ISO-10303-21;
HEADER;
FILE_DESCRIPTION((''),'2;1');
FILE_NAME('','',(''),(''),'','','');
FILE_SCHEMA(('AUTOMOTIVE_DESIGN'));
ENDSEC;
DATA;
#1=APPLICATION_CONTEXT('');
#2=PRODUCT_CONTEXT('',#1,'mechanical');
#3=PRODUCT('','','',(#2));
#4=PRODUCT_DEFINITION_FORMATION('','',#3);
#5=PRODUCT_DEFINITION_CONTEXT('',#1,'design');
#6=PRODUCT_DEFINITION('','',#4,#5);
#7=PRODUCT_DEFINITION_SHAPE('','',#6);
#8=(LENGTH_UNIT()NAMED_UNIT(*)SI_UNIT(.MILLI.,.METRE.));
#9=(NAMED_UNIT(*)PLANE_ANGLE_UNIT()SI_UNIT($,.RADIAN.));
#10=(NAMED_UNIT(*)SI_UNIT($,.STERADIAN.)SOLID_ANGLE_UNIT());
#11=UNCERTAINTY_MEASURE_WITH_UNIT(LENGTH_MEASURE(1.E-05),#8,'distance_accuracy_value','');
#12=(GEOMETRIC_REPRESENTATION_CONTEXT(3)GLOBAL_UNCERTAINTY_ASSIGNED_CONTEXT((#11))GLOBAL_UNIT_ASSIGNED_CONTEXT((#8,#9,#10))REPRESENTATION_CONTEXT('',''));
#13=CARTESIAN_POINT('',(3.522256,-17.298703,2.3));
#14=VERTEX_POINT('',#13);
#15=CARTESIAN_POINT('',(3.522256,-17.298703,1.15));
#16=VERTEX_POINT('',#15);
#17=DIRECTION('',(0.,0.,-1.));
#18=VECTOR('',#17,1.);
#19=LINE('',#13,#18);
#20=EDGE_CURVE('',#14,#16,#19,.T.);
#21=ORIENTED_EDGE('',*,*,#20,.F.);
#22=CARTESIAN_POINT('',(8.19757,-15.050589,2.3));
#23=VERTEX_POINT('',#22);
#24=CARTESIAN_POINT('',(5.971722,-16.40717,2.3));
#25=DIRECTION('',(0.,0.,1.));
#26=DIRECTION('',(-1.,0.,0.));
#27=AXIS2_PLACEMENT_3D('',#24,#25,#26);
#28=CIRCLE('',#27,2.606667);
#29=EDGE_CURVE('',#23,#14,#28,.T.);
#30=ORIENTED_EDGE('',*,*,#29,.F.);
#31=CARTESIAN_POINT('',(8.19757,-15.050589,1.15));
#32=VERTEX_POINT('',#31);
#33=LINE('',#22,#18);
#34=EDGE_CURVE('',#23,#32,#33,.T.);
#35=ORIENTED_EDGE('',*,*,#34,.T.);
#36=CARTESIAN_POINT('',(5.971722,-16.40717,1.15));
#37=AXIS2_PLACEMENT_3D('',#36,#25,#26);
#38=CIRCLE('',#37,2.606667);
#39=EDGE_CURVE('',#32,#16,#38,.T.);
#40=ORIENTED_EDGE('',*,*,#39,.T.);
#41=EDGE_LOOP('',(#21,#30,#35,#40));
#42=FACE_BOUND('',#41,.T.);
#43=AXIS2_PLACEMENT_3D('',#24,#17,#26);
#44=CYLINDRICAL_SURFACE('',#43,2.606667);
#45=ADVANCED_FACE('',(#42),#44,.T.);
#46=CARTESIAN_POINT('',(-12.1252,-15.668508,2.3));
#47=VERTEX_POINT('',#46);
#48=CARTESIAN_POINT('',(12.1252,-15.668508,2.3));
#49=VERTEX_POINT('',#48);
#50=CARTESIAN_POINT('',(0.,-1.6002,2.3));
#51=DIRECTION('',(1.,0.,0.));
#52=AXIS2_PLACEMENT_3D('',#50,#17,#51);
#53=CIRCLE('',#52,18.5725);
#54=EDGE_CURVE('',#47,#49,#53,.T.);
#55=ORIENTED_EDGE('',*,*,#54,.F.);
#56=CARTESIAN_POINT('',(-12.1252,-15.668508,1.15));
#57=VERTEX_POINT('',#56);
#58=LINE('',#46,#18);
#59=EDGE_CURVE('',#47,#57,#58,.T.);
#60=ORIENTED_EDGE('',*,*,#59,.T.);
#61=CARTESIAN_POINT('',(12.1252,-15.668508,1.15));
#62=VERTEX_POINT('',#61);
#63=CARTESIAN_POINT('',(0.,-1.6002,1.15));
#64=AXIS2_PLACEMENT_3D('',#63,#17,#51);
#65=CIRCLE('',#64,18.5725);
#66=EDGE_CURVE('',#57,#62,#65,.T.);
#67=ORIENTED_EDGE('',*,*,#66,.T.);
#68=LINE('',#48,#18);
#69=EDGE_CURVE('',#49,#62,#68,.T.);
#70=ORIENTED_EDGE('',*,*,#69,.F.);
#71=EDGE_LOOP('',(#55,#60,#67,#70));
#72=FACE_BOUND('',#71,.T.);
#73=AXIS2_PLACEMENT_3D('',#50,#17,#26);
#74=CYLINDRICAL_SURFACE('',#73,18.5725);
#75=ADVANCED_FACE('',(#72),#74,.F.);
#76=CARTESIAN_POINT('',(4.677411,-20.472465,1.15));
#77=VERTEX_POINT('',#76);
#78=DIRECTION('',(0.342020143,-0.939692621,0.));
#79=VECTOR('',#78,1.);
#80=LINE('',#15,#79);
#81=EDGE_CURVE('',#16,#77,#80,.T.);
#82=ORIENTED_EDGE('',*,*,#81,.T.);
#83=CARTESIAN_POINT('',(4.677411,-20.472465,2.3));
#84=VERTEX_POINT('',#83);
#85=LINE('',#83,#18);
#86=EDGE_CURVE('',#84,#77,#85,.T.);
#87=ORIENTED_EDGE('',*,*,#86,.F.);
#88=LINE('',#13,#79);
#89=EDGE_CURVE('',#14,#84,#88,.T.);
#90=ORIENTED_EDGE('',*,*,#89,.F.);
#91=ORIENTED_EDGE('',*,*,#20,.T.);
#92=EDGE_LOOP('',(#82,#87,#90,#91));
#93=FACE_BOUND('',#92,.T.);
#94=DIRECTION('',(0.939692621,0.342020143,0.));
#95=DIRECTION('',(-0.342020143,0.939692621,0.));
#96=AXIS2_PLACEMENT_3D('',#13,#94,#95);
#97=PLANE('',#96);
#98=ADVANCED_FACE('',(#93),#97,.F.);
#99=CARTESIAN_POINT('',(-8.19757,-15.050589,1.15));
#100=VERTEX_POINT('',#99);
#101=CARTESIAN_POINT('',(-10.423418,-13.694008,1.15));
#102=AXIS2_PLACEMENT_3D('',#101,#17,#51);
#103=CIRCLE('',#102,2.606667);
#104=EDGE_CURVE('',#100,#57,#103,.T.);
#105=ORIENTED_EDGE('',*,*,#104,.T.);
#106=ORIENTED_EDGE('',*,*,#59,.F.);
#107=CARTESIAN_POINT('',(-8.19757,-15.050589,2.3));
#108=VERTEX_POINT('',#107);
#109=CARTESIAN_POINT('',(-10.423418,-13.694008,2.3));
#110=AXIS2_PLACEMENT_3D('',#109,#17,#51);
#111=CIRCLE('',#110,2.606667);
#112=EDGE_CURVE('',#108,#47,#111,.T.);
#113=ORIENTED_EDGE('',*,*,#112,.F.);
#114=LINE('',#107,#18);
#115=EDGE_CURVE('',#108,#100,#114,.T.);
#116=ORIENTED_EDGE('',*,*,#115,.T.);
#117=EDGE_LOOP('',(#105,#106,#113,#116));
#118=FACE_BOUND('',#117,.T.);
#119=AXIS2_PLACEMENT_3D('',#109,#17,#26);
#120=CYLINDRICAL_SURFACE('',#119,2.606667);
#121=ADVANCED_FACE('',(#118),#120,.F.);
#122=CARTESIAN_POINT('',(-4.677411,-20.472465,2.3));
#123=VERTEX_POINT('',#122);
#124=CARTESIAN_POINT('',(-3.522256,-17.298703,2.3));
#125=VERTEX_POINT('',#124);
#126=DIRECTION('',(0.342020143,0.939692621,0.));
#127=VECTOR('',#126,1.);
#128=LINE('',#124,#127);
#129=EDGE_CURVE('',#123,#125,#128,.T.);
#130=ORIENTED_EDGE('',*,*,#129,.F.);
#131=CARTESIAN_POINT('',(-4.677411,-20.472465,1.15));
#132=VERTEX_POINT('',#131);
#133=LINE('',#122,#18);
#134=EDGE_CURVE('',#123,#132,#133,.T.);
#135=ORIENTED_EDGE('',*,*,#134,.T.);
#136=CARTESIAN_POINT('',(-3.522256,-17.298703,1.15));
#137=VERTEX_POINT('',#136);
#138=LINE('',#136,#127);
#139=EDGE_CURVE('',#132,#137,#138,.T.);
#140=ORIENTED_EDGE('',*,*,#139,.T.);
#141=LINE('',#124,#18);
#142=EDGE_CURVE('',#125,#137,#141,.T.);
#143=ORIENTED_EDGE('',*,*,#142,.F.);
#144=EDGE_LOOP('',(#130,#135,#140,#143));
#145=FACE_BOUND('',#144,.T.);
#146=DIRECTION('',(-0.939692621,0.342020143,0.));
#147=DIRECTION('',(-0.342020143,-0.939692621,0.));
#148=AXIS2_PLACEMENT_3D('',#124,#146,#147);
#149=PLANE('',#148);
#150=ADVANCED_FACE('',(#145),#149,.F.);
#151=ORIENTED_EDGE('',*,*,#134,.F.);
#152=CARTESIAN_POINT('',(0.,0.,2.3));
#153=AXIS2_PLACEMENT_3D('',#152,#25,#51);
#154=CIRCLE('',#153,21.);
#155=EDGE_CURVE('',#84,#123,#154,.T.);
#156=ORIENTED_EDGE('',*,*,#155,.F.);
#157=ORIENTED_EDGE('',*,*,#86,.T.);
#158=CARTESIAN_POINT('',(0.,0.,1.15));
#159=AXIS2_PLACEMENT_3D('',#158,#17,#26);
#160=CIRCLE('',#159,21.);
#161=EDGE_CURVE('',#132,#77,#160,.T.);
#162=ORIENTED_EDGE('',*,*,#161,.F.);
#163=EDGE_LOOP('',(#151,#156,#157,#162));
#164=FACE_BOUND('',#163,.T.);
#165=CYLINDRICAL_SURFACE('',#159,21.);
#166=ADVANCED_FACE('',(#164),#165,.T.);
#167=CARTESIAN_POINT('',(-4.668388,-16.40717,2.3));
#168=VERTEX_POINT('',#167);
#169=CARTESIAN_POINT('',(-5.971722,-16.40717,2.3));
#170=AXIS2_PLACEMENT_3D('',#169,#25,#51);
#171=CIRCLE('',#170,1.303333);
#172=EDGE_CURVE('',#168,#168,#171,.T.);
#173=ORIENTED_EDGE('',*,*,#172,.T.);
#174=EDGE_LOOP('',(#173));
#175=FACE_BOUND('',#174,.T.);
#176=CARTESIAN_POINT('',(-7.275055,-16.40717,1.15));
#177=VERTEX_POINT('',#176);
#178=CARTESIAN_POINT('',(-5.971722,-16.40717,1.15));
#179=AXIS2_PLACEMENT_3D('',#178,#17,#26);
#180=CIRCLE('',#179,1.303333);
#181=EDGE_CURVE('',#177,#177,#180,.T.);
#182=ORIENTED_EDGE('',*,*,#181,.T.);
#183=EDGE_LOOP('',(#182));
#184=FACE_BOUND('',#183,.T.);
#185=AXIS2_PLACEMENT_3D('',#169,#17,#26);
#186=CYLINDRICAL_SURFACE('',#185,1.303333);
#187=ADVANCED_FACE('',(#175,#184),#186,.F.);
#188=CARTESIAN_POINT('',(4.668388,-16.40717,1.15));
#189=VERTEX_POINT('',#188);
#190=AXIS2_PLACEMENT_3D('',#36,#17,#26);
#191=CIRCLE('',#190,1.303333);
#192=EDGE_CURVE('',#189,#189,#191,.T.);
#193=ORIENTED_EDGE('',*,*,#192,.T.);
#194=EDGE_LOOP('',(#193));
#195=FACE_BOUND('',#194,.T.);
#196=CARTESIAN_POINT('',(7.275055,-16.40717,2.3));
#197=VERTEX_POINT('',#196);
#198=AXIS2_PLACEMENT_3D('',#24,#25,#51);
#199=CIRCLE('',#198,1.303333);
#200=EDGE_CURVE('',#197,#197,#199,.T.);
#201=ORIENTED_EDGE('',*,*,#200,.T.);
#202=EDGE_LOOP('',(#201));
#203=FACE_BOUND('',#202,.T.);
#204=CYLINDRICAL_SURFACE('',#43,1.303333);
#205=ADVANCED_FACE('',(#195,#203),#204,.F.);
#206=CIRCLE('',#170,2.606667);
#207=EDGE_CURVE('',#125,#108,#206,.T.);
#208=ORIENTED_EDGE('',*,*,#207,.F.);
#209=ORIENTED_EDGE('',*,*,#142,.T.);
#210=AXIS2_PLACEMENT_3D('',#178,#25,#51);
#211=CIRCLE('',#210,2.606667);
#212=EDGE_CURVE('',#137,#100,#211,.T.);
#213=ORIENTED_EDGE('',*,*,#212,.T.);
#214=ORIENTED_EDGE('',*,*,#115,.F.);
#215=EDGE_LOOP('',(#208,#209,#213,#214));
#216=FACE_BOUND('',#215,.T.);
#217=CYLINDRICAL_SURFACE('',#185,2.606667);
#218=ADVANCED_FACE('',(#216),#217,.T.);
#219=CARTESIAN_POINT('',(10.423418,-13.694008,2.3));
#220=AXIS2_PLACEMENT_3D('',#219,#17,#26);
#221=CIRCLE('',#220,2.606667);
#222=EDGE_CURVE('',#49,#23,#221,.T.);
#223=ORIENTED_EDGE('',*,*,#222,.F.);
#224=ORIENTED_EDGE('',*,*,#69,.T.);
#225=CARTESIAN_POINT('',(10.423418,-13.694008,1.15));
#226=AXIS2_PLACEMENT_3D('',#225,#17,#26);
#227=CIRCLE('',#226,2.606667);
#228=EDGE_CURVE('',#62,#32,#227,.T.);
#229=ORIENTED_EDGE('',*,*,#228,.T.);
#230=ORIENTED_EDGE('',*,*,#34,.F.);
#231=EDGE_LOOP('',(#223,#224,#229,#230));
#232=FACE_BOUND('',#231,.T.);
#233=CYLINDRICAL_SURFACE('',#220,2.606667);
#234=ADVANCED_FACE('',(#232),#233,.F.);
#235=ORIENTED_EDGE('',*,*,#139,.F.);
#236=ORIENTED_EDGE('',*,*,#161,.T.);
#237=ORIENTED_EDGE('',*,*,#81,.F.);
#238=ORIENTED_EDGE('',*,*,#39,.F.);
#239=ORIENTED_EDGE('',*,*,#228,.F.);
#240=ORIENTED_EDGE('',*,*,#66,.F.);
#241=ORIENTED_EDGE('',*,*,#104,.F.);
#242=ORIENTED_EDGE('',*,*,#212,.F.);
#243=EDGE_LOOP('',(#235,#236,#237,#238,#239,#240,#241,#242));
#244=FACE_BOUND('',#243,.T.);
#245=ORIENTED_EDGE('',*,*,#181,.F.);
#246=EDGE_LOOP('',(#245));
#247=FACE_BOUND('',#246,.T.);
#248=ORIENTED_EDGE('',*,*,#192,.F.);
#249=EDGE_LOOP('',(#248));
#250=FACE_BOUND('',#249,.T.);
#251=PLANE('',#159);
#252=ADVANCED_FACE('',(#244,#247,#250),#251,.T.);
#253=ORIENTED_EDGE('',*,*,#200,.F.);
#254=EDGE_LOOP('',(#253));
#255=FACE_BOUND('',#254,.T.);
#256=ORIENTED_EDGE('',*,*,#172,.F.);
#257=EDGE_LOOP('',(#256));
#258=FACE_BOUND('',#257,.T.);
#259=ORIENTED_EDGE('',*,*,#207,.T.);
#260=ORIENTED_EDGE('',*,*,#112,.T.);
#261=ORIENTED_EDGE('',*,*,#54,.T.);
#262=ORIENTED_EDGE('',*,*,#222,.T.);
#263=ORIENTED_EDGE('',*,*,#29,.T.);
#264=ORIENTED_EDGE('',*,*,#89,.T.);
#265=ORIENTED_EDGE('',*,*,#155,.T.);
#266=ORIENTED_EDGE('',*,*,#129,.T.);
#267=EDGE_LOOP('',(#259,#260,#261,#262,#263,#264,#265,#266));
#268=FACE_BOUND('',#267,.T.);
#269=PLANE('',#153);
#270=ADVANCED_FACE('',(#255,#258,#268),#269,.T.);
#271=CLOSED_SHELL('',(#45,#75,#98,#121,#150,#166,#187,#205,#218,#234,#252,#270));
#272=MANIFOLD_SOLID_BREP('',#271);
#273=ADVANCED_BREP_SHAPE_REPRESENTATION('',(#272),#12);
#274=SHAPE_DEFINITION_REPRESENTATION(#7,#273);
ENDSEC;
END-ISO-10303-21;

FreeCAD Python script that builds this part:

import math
import FreeCAD as App
import Part
import Sketcher
from FreeCAD import Vector
Q = App.Units.Quantity

doc = App.newDocument("Part")
params = doc.addObject("Spreadsheet::Sheet", "Params")
for row, (alias, value) in enumerate([
    ("sketch1_diameter", "42 mm"),
    ("pad1_length", "1.15 mm"),
    ("sketch2_radius", "21 mm"),
    ("pad2_length", "1.15 mm"),
    ("sketch3_diameter", "42 mm"),
    ("pocket1_length", "1.15 mm"),
], start=1):
    params.set(f"A{row}", alias)
    params.set(f"B{row}", "=" + value)
    params.setAlias(f"B{row}", alias)

body = doc.addObject("PartDesign::Body", "Body")

# Sketch on XY plane
sketch1 = body.newObject("Sketcher::SketchObject", "Sketch")
sketch1.AttachmentSupport = (doc.getObject("XY_Plane"), [""])
sketch1.MapMode = "FlatFace"
sketch1.addGeometry(Part.Circle(Vector(0, 0, 0), Vector(0, 0, 1), 21), False)
sketch1.addConstraint([
    Sketcher.Constraint("Coincident", 0, 3, -1, 1),
    Sketcher.Constraint("Diameter", 0, Q("42 mm")),
])
sketch1.setExpression("Constraints[1]", "Params.sketch1_diameter")
pad1 = body.newObject("PartDesign::Pad", "Pad")
pad1.Profile = sketch1
pad1.setExpression("Length", "Params.pad1_length")

# Sketch on XY plane
sketch2 = body.newObject("Sketcher::SketchObject", "Sketch001")
sketch2.AttachmentSupport = (doc.getObject("XY_Plane"), [""])
sketch2.MapMode = "FlatFace"
sketch2.AttachmentOffset = App.Placement(Vector(0, 0, 1.15), App.Rotation())
sketch2.addGeometry([
    Part.LineSegment(Vector(-4.7, -20.5, 0), Vector(-3.5, -17.3, 0)),  # 0
    Part.ArcOfCircle(Part.Circle(Vector(-6, -16.4, 0), Vector(0, 0, 1), 2.6), math.radians(-20), math.radians(149)),  # 1
    Part.ArcOfCircle(Part.Circle(Vector(-10.4, -13.7, 0), Vector(0, 0, 1), 2.6), math.radians(-131), math.radians(-31)),  # 2
    Part.ArcOfCircle(Part.Circle(Vector(0, -1.6, 0), Vector(0, 0, 1), 18.6), math.radians(-49), math.radians(229)),  # 3
    Part.ArcOfCircle(Part.Circle(Vector(10.4, -13.7, 0), Vector(0, 0, 1), 2.6), math.radians(-149), math.radians(-49)),  # 4
    Part.ArcOfCircle(Part.Circle(Vector(6, -16.4, 0), Vector(0, 0, 1), 2.6), math.radians(31), math.radians(200)),  # 5
    Part.LineSegment(Vector(3.5, -17.3, 0), Vector(4.7, -20.5, 0)),  # 6
    Part.ArcOfCircle(Part.Circle(Vector(0, 0, 0), Vector(0, 0, 1), 21), math.radians(-77), math.radians(257)),  # 7
    Part.Circle(Vector(6, -16.4, 0), Vector(0, 0, 1), 1.3),  # 8
    Part.Circle(Vector(-6, -16.4, 0), Vector(0, 0, 1), 1.3),  # 9
], False)
sketch2.addConstraint([
    Sketcher.Constraint("Tangent", 0, 2, 1, 1),
    Sketcher.Constraint("Tangent", 1, 2, 2, 2),
    Sketcher.Constraint("Tangent", 2, 1, 3, 2),
    Sketcher.Constraint("Tangent", 3, 1, 4, 2),
    Sketcher.Constraint("Tangent", 4, 1, 5, 1),
    Sketcher.Constraint("Tangent", 5, 2, 6, 1),
    Sketcher.Constraint("Coincident", 6, 2, 7, 1),
    Sketcher.Constraint("Coincident", 7, 2, 0, 1),
    Sketcher.Constraint("Coincident", 7, 3, -1, 1),
    Sketcher.Constraint("Coincident", 8, 3, 5, 3),
    Sketcher.Constraint("Coincident", 9, 3, 1, 3),
    Sketcher.Constraint("Equal", 1, 2),
    Sketcher.Constraint("Equal", 2, 4),
    Sketcher.Constraint("Equal", 4, 5),
    Sketcher.Constraint("Equal", 8, 9),
    Sketcher.Constraint("Symmetric", 2, 3, 4, 3, -2),
    Sketcher.Constraint("Symmetric", 0, 2, 5, 2, -2),
    Sketcher.Constraint("Radius", 7, Q("21 mm")),
    Sketcher.Constraint("Angle", 0, Q("70 deg")),
    Sketcher.Constraint("Radius", 3, Q("18.5725 mm")),
    Sketcher.Constraint("Diameter", 8, Q("2.606667 mm")),
    Sketcher.Constraint("Radius", 1, Q("2.606667 mm")),
    Sketcher.Constraint("DistanceY", 3, 3, -1, 1, Q("1.6002 mm")),
    Sketcher.Constraint("DistanceX", 2, 1, -1, 1, Q("12.1252 mm")),
    Sketcher.Constraint("DistanceX", 1, 3, -1, 1, Q("5.971722 mm")),
])
sketch2.setExpression("Constraints[17]", "Params.sketch2_radius")
pad2 = body.newObject("PartDesign::Pad", "Pad001")
pad2.Profile = sketch2
pad2.setExpression("Length", "Params.pad2_length")

# Sketch on XY plane
sketch3 = body.newObject("Sketcher::SketchObject", "Sketch002")
sketch3.AttachmentSupport = (doc.getObject("XY_Plane"), [""])
sketch3.MapMode = "FlatFace"
sketch3.addGeometry(Part.Circle(Vector(0, 0, 0), Vector(0, 0, 1), 21), False)
sketch3.addConstraint([
    Sketcher.Constraint("Coincident", 0, 3, -1, 1),
    Sketcher.Constraint("Diameter", 0, Q("42 mm")),
])
sketch3.setExpression("Constraints[1]", "Params.sketch3_diameter")
pocket1 = body.newObject("PartDesign::Pocket", "Pocket")
pocket1.Profile = sketch3
pocket1.setExpression("Length", "Params.pocket1_length")
pocket1.Reversed = True

doc.recompute()
